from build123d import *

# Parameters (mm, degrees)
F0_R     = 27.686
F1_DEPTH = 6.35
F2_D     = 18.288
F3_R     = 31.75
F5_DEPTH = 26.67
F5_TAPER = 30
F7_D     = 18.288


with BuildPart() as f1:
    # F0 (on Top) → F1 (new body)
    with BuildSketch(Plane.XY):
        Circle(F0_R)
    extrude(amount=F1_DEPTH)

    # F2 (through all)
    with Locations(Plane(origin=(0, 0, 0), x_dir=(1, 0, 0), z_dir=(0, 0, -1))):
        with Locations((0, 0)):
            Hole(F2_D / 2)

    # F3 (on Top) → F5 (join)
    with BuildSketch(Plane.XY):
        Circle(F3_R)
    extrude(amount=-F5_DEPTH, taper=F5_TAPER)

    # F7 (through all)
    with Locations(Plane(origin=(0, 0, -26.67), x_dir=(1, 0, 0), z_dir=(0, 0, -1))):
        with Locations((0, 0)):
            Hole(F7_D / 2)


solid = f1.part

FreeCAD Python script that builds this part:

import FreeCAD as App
import Part
import Sketcher
Q = App.Units.Quantity

doc = App.newDocument("Part")
body = doc.addObject("PartDesign::Body", "Body")

sketch1 = body.newObject("Sketcher::SketchObject", "Sketch")
sketch1.AttachmentSupport = (doc.getObject("XY_Plane"), [""])
sketch1.MapMode = "FlatFace"
sketch1.addGeometry(Part.Circle(App.Vector(0, 0, 0), App.Vector(0, 0, 1), 27.686), False)
sketch1.addConstraint([
    Sketcher.Constraint("Coincident", 0, 3, -1, 1),
    Sketcher.Constraint("Diameter", 0, Q("2.18 in")),
])
pad1 = body.newObject("PartDesign::Pad", "Pad")
pad1.Profile = sketch1
pad1.Length = Q("0.25 in")

sketch2 = body.newObject("Sketcher::SketchObject", "Sketch001")
sketch2.AttachmentSupport = (doc.getObject("XY_Plane"), [""])
sketch2.MapMode = "FlatFace"
sketch2.addGeometry(Part.Circle(App.Vector(0, 0, 0), App.Vector(0, 0, 1), 9.144), False)
sketch2.addConstraint([
    Sketcher.Constraint("Coincident", 0, 3, -1, 1),
    Sketcher.Constraint("Diameter", 0, Q("0.72 in")),
])
doc.recompute()
hole = body.newObject("PartDesign::Hole", "Hole")
hole.Profile = sketch2
hole.ThreadType = "None"
hole.Diameter = Q("0.72 in")
hole.DepthType = "ThroughAll"
hole.Reversed = True

sketch3 = body.newObject("Sketcher::SketchObject", "Sketch002")
sketch3.AttachmentSupport = (doc.getObject("XY_Plane"), [""])
sketch3.MapMode = "FlatFace"
sketch3.addGeometry(Part.Circle(App.Vector(0, 0, 0), App.Vector(0, 0, 1), 31.75), False)
sketch3.addConstraint([
    Sketcher.Constraint("Coincident", 0, 3, -1, 1),
    Sketcher.Constraint("Diameter", 0, Q("2.5 in")),
])
pad2 = body.newObject("PartDesign::Pad", "Pad001")
pad2.Profile = sketch3
pad2.Length = Q("1.05 in")
pad2.Reversed = True
pad2.TaperAngle = -30

sketch4 = body.newObject("Sketcher::SketchObject", "Sketch003")
sketch4.AttachmentSupport = (doc.getObject("XY_Plane"), [""])
sketch4.MapMode = "FlatFace"
sketch4.AttachmentOffset = App.Placement(App.Vector(0, 0, -1.05 * 25.4), App.Rotation())
sketch4.addGeometry(Part.Circle(App.Vector(0, 0, 0), App.Vector(0, 0, 1), 9.144), False)
sketch4.addConstraint([
    Sketcher.Constraint("Coincident", 0, 3, -1, 1),
    Sketcher.Constraint("Diameter", 0, Q("0.72 in")),
])
doc.recompute()
hole2 = body.newObject("PartDesign::Hole", "Hole001")
hole2.Profile = sketch4
hole2.ThreadType = "None"
hole2.Diameter = Q("0.72 in")
hole2.DepthType = "ThroughAll"
hole2.Reversed = True

doc.recompute()
